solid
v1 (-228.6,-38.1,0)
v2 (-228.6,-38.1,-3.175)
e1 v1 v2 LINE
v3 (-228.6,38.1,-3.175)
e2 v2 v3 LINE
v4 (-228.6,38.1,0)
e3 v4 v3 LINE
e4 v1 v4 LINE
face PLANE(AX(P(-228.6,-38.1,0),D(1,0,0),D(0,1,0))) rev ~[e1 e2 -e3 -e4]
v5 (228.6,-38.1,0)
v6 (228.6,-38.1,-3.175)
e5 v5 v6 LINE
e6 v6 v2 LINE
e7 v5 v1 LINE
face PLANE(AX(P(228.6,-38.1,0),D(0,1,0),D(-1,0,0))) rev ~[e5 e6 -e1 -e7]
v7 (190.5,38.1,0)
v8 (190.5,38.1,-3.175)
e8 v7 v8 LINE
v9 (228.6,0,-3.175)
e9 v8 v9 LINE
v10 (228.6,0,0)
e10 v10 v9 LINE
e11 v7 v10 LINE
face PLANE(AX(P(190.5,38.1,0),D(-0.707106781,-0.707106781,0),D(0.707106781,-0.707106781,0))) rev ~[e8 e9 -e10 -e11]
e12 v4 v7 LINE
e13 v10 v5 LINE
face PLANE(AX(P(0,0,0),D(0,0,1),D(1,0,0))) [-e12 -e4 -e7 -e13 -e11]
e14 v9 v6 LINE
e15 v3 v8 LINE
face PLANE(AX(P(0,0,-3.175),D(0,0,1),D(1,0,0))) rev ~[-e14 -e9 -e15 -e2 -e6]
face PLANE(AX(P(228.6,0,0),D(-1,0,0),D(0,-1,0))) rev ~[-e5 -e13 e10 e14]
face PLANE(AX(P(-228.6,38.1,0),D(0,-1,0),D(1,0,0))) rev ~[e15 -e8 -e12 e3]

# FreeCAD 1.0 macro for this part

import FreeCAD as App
import Part
import Sketcher
from FreeCAD import Vector
Q = App.Units.Quantity


def add_polygon(sketch, points):
    """Adds a closed chain of lines whose ends are joined by coincident constraints."""
    first, n = sketch.GeometryCount, len(points)
    for a, b in zip(points, points[1:] + points[:1]):
        sketch.addGeometry(Part.LineSegment(App.Vector(*a, 0), App.Vector(*b, 0)), False)
    for i in range(n):
        sketch.addConstraint(Sketcher.Constraint("Coincident", first + i, 2, first + (i + 1) % n, 1))

doc = App.newDocument("Part")
params = doc.addObject("Spreadsheet::Sheet", "Params")
for row, (alias, value) in enumerate([
    ("sketch1_width", "18 in"),
    ("sketch1_height", "3 in"),
    ("pad1_length", "0.125 in"),
], start=1):
    params.set(f"A{row}", alias)
    params.set(f"B{row}", "=" + value)
    params.setAlias(f"B{row}", alias)

body = doc.addObject("PartDesign::Body", "Body")

# Sketch on XY plane
sketch1 = body.newObject("Sketcher::SketchObject", "Sketch")
sketch1.AttachmentSupport = (doc.getObject("XY_Plane"), [""])
sketch1.MapMode = "FlatFace"
add_polygon(sketch1, [(190, 38), (-229, 38), (-229, -38), (229, -38), (229, 0)])  # lines 0-4
sketch1.addConstraint([
    Sketcher.Constraint("Horizontal", 0),
    Sketcher.Constraint("Vertical", 1),
    Sketcher.Constraint("Horizontal", 2),
    Sketcher.Constraint("Vertical", 3),
    Sketcher.Constraint("Symmetric", 0, 2, 2, 2, -1, 1),
    Sketcher.Constraint("PointOnObject", 3, 2, -1),
    Sketcher.Constraint("DistanceX", 2, 1, 2, 2, Q("18 in")),
    Sketcher.Constraint("DistanceY", 1, 2, 1, 1, Q("3 in")),
    Sketcher.Constraint("DistanceX", 4, 2, 3, 2, Q("1.5 in")),
])
sketch1.setExpression("Constraints[11]", "Params.sketch1_width")
sketch1.setExpression("Constraints[12]", "Params.sketch1_height")
pad1 = body.newObject("PartDesign::Pad", "Pad")
pad1.Profile = sketch1
pad1.setExpression("Length", "Params.pad1_length")
pad1.Reversed = True

doc.recompute()
